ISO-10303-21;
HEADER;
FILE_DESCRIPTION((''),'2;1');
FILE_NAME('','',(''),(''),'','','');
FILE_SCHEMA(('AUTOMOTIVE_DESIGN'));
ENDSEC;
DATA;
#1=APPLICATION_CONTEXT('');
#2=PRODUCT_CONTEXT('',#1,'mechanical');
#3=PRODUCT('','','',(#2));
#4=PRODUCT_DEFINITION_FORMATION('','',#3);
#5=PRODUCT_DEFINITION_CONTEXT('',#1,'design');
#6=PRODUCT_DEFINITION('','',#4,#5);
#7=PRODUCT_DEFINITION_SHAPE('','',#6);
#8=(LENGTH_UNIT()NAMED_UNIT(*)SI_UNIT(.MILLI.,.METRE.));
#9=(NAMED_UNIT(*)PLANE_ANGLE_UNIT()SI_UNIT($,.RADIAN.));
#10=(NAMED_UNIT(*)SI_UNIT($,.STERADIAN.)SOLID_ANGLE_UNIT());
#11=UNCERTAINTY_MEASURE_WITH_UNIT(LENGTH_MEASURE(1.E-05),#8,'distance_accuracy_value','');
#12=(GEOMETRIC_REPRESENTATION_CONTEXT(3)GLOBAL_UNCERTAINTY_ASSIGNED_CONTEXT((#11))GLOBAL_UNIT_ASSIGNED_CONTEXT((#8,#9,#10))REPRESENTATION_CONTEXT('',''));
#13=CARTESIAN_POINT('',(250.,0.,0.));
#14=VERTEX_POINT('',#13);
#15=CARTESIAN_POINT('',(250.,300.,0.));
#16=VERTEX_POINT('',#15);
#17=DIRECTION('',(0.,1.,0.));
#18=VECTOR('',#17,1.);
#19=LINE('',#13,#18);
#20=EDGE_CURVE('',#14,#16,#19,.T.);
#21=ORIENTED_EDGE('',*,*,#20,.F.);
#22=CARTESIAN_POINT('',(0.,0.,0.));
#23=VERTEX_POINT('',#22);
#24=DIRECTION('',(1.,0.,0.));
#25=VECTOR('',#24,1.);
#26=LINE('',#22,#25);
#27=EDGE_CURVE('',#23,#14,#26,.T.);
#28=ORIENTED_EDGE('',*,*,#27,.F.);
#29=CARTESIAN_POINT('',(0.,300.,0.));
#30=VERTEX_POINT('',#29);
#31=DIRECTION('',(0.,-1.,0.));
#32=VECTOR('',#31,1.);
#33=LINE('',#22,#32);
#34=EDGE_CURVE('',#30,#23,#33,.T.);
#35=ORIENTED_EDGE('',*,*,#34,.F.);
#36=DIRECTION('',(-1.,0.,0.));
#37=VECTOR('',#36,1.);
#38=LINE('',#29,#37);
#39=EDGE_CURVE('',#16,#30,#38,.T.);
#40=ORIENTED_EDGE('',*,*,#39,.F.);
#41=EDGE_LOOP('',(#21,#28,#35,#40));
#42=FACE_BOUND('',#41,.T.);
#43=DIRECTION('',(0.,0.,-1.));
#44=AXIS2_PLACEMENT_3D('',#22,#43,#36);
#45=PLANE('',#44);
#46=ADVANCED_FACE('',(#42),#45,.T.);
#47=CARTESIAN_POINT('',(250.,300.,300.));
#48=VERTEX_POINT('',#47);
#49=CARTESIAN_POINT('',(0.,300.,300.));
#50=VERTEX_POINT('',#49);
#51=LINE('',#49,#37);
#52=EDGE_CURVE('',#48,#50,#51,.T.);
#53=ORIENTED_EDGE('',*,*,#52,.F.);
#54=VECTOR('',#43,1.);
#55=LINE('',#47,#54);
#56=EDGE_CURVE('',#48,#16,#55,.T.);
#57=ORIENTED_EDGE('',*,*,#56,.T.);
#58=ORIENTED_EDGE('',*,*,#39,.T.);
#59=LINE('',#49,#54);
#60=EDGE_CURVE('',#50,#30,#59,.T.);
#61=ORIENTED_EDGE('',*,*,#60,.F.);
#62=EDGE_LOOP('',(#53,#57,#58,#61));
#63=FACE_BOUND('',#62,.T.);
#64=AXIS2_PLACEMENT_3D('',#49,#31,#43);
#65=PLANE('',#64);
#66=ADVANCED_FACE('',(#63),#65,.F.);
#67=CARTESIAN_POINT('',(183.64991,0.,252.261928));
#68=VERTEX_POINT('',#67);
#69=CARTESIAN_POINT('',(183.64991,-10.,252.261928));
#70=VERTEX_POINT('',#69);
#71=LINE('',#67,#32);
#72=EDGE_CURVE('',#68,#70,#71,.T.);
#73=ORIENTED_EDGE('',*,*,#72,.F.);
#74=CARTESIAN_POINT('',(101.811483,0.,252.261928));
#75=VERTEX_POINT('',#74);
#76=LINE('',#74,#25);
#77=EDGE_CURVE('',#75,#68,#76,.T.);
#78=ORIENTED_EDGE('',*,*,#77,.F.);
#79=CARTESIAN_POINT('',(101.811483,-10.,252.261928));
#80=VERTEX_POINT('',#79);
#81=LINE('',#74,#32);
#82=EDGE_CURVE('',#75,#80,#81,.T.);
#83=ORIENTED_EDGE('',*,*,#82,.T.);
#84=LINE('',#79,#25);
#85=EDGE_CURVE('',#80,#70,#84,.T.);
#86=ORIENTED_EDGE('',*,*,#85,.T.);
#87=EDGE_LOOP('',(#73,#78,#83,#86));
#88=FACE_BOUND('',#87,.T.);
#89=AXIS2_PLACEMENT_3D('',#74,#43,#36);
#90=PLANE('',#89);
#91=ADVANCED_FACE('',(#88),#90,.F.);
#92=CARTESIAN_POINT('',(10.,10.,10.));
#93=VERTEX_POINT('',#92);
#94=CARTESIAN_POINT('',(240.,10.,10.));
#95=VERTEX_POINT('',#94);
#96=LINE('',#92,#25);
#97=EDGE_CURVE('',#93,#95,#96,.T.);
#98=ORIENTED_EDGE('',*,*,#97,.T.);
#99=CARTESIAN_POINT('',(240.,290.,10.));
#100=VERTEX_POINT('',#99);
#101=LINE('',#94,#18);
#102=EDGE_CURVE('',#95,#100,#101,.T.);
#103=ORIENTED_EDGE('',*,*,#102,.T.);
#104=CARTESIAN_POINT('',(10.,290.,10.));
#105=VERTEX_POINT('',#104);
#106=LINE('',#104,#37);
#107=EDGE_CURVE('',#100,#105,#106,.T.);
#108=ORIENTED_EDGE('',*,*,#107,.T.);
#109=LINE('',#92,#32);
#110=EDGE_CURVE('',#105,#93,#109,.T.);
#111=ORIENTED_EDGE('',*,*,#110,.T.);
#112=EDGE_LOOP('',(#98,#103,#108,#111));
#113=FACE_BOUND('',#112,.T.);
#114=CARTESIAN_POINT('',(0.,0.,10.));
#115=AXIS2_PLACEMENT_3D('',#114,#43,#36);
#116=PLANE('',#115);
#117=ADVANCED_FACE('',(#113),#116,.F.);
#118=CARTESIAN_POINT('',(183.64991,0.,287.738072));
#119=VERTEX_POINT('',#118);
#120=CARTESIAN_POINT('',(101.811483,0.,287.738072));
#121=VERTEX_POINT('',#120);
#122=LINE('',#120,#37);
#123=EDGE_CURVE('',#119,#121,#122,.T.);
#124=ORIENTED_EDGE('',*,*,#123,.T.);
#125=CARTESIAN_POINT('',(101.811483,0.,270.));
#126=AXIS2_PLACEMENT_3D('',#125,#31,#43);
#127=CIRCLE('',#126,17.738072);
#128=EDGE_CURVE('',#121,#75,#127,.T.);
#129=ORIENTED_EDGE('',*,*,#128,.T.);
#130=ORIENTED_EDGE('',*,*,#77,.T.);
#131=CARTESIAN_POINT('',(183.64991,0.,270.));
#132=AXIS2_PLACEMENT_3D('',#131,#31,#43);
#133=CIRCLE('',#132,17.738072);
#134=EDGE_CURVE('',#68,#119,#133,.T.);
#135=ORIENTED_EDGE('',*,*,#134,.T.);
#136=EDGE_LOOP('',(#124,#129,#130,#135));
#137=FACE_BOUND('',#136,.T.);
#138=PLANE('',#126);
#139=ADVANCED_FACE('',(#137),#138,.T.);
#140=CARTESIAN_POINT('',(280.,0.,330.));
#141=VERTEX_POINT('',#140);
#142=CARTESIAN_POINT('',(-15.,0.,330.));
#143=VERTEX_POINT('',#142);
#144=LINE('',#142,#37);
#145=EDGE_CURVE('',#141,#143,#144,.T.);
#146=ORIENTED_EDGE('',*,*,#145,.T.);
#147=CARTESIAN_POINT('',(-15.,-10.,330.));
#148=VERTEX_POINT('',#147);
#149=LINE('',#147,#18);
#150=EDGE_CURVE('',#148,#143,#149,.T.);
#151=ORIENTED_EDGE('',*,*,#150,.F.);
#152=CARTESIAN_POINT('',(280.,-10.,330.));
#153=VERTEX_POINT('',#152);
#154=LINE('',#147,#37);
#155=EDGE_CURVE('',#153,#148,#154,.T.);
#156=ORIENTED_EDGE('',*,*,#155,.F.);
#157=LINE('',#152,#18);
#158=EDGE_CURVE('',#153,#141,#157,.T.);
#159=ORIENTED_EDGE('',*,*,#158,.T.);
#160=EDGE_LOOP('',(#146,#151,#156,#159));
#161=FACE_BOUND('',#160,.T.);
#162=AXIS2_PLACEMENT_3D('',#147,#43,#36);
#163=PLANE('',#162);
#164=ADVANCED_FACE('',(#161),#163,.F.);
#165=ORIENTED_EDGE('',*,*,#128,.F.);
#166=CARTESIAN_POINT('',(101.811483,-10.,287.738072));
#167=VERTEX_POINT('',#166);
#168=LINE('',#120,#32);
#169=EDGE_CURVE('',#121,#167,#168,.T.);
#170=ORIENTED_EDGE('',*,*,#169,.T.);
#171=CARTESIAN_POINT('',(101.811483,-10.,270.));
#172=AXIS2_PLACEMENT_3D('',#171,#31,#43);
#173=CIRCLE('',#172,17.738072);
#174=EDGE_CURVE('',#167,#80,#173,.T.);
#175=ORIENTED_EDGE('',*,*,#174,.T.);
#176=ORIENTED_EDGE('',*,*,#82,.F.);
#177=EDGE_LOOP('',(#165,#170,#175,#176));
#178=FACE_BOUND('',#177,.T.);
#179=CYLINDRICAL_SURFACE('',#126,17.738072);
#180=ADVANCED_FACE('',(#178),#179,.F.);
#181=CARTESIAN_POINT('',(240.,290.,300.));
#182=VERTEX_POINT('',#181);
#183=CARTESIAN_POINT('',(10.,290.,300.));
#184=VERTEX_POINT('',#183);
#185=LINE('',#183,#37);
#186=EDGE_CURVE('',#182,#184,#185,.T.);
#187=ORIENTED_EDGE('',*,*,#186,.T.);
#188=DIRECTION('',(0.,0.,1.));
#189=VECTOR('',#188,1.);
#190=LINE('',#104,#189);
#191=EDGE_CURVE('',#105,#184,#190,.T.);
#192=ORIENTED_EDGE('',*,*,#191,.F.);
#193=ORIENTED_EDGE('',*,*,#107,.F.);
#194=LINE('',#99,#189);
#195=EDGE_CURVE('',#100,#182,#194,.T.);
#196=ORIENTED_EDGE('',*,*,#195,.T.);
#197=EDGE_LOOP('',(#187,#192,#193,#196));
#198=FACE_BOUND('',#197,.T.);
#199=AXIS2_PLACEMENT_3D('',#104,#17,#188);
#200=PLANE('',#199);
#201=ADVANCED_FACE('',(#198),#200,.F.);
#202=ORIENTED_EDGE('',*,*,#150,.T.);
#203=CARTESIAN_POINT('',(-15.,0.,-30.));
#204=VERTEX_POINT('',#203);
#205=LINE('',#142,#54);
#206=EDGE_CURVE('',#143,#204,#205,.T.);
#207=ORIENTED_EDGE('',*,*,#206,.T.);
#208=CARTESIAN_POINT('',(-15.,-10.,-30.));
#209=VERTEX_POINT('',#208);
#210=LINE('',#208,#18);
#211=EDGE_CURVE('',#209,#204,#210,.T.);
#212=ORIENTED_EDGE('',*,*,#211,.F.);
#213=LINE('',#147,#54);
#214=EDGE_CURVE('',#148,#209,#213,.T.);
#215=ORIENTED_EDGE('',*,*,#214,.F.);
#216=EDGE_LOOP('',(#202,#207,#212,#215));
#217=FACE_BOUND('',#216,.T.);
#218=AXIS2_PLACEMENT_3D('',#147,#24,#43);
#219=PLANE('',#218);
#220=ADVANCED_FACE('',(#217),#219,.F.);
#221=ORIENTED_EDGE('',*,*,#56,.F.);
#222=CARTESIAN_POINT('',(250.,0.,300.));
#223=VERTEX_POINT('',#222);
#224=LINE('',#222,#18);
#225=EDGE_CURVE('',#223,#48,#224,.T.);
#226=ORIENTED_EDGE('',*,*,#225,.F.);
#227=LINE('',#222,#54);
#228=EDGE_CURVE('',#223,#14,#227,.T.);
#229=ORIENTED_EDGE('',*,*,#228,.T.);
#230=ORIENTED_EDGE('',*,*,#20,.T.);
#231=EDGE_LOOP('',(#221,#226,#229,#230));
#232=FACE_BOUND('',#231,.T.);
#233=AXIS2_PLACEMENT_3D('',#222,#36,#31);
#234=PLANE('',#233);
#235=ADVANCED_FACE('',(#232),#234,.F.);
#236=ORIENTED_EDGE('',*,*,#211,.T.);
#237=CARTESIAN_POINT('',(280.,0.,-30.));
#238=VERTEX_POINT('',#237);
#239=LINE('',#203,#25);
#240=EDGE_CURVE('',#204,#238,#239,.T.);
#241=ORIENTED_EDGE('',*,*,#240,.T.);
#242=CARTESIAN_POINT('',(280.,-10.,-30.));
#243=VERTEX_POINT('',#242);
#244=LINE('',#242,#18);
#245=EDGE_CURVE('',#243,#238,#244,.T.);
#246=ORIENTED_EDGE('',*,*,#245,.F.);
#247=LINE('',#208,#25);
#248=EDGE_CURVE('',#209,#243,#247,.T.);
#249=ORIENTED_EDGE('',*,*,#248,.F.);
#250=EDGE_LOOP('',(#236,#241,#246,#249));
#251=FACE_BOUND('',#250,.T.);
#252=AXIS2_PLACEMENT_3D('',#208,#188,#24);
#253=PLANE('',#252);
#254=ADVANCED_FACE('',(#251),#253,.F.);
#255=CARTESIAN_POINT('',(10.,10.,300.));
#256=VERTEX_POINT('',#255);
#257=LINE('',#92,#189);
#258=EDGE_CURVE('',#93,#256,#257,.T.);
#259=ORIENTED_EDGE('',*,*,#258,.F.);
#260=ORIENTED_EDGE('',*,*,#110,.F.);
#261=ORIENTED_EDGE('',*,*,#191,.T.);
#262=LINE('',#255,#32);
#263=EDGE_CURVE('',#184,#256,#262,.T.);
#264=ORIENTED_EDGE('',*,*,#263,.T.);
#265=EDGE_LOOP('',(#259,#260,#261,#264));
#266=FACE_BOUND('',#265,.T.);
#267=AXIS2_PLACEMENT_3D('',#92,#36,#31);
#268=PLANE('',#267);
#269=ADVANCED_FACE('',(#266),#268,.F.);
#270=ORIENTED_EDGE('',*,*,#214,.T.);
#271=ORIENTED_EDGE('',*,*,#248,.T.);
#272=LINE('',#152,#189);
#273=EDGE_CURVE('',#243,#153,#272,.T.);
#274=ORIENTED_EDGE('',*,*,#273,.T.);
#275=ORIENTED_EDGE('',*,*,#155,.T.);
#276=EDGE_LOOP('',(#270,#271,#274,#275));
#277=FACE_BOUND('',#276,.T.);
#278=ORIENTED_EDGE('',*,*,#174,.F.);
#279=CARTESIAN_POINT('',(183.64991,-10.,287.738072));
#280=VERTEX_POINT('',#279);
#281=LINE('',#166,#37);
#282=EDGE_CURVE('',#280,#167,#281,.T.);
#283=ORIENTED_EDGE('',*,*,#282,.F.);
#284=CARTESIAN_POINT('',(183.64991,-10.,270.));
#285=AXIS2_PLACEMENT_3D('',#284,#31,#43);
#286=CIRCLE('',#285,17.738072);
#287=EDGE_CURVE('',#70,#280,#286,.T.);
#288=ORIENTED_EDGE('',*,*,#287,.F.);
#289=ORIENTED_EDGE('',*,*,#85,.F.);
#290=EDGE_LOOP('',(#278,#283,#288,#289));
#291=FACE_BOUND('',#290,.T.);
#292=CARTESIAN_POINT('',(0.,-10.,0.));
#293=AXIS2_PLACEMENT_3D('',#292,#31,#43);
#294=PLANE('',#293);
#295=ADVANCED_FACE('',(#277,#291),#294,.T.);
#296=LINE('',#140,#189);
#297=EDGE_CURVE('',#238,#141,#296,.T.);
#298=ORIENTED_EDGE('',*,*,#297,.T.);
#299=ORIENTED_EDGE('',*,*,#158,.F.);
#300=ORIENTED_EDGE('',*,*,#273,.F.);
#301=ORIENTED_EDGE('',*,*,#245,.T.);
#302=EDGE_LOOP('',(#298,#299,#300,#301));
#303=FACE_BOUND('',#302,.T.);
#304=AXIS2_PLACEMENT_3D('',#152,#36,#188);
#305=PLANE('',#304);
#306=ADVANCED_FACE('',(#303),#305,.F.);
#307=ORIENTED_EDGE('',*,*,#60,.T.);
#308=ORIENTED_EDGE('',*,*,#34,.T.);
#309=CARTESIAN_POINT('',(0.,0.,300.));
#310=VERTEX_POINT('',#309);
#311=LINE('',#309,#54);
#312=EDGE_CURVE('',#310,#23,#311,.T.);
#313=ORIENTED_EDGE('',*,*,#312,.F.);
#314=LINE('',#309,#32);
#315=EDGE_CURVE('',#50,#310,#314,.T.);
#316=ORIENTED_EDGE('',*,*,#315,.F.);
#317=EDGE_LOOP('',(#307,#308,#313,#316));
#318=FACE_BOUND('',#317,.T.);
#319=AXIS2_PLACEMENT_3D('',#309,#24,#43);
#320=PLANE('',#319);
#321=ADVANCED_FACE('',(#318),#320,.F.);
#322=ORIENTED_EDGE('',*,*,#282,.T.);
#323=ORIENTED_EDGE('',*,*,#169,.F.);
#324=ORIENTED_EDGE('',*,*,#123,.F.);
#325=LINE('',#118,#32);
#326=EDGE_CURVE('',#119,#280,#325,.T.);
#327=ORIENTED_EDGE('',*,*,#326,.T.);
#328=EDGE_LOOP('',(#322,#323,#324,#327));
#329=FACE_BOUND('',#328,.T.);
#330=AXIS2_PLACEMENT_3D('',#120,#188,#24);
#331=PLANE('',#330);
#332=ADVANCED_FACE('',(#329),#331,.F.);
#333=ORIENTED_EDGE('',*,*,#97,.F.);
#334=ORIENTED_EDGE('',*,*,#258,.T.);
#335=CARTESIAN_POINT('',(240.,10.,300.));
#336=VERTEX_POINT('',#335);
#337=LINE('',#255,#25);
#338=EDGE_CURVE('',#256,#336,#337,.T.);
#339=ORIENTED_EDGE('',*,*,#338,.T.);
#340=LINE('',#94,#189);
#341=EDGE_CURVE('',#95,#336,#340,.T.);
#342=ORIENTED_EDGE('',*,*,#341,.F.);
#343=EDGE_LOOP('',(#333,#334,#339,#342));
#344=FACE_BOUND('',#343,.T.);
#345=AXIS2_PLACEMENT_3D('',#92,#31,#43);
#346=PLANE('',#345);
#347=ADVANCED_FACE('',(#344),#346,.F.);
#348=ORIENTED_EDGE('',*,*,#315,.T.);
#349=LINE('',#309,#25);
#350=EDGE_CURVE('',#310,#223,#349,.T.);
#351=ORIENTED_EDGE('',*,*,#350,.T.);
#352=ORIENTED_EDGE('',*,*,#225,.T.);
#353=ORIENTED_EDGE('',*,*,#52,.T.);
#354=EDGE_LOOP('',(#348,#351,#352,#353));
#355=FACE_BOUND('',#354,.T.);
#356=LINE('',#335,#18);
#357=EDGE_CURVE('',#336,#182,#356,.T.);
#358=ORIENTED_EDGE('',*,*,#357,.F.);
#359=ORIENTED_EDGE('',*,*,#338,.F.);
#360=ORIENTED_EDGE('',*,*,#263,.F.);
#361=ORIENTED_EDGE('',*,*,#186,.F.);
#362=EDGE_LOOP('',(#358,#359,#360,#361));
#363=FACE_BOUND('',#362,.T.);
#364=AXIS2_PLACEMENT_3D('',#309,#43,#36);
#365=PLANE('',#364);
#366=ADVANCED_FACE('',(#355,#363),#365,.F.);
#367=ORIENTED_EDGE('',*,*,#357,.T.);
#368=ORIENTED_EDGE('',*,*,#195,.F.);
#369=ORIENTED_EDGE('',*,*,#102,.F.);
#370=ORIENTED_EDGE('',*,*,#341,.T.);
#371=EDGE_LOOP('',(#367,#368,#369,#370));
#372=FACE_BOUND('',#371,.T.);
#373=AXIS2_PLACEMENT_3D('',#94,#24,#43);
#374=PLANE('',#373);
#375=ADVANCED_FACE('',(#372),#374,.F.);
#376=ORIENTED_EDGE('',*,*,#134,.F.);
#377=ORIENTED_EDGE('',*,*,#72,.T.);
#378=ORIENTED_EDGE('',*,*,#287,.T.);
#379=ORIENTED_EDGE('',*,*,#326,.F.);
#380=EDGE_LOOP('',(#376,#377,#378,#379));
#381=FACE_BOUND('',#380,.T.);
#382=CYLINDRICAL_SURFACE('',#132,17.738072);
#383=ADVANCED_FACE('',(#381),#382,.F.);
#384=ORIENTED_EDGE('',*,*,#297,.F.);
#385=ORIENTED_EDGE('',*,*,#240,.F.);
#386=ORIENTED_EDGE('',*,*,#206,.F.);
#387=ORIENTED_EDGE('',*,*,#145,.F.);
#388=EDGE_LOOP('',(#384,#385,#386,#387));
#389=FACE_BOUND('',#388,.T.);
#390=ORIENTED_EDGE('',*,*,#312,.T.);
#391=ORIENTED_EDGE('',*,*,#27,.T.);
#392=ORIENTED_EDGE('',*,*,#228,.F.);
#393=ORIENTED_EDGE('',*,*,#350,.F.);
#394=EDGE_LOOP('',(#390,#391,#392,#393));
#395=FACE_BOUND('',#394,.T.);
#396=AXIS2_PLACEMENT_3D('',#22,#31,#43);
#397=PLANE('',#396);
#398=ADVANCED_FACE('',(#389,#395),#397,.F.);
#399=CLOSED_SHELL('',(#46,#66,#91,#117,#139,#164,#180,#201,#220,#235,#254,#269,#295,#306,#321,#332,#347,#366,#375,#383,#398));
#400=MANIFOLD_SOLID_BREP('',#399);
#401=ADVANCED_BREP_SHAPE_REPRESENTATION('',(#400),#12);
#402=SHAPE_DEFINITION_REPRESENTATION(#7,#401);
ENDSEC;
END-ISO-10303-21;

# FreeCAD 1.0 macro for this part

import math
import FreeCAD as App
import Part
import Sketcher

V = App.Vector

doc = App.newDocument("Part")
body = doc.addObject("PartDesign::Body", "Body")

# Sketch on XY plane
sketch1 = doc.addObject("Sketcher::SketchObject", "Sketch")
body.addObject(sketch1)
sketch1.AttachmentSupport = (doc.XY_Plane, [""])
sketch1.MapMode = "FlatFace"
sketch1.addGeometry(Part.LineSegment(V(0, 300, 0), V(0, 0, 0)), False)
sketch1.addGeometry(Part.LineSegment(V(0, 0, 0), V(250, 0, 0)), False)
sketch1.addGeometry(Part.LineSegment(V(250, 0, 0), V(250, 300, 0)), False)
sketch1.addGeometry(Part.LineSegment(V(250, 300, 0), V(0, 300, 0)), False)
sketch1.addConstraint(Sketcher.Constraint("Coincident", 0, 2, 1, 1))
sketch1.addConstraint(Sketcher.Constraint("Coincident", 1, 2, 2, 1))
sketch1.addConstraint(Sketcher.Constraint("Coincident", 2, 2, 3, 1))
sketch1.addConstraint(Sketcher.Constraint("Coincident", 3, 2, 0, 1))
sketch1.addConstraint(Sketcher.Constraint("Vertical", 0))
sketch1.addConstraint(Sketcher.Constraint("Horizontal", 1))
sketch1.addConstraint(Sketcher.Constraint("Vertical", 2))
sketch1.addConstraint(Sketcher.Constraint("Horizontal", 3))
sketch1.addConstraint(Sketcher.Constraint("Coincident", 0, 2, -1, 1))
sketch1.addConstraint(Sketcher.Constraint("DistanceX", 1, 1, 1, 2, 250.0))
sketch1.addConstraint(Sketcher.Constraint("DistanceY", 0, 2, 0, 1, 300.0))
pad1 = doc.addObject("PartDesign::Pad", "Pad")
body.addObject(pad1)
pad1.Profile = sketch1
pad1.Length = 300

# Sketch on XY plane
sketch2 = doc.addObject("Sketcher::SketchObject", "Sketch001")
body.addObject(sketch2)
sketch2.AttachmentSupport = (doc.XY_Plane, [""])
sketch2.MapMode = "FlatFace"
sketch2.AttachmentOffset = App.Placement(V(0, 0, 300), App.Rotation())
sketch2.addGeometry(Part.LineSegment(V(10, 290, 0), V(10, 10, 0)), False)
sketch2.addGeometry(Part.LineSegment(V(10, 10, 0), V(240, 10, 0)), False)
sketch2.addGeometry(Part.LineSegment(V(240, 10, 0), V(240, 290, 0)), False)
sketch2.addGeometry(Part.LineSegment(V(240, 290, 0), V(10, 290, 0)), False)
sketch2.addConstraint(Sketcher.Constraint("Coincident", 0, 2, 1, 1))
sketch2.addConstraint(Sketcher.Constraint("Coincident", 1, 2, 2, 1))
sketch2.addConstraint(Sketcher.Constraint("Coincident", 2, 2, 3, 1))
sketch2.addConstraint(Sketcher.Constraint("Coincident", 3, 2, 0, 1))
sketch2.addConstraint(Sketcher.Constraint("Vertical", 0))
sketch2.addConstraint(Sketcher.Constraint("Horizontal", 1))
sketch2.addConstraint(Sketcher.Constraint("Vertical", 2))
sketch2.addConstraint(Sketcher.Constraint("Horizontal", 3))
sketch2.addConstraint(Sketcher.Constraint("DistanceX", 1, 1, 1, 2, 230.0))
sketch2.addConstraint(Sketcher.Constraint("DistanceY", 0, 2, 0, 1, 280.0))
sketch2.addConstraint(Sketcher.Constraint("DistanceX", -1, 1, 0, 2, 10.0))
sketch2.addConstraint(Sketcher.Constraint("DistanceY", -1, 1, 0, 2, 10.0))
pocket1 = doc.addObject("PartDesign::Pocket", "Pocket")
body.addObject(pocket1)
pocket1.Profile = sketch2
pocket1.Length = 290

# Sketch on XZ plane
sketch3 = doc.addObject("Sketcher::SketchObject", "Sketch002")
body.addObject(sketch3)
sketch3.AttachmentSupport = (doc.XZ_Plane, [""])
sketch3.MapMode = "FlatFace"
sketch3.addGeometry(Part.LineSegment(V(-15, 330, 0), V(-15, -30, 0)), False)
sketch3.addGeometry(Part.LineSegment(V(-15, -30, 0), V(280, -30, 0)), False)
sketch3.addGeometry(Part.LineSegment(V(280, -30, 0), V(280, 330, 0)), False)
sketch3.addGeometry(Part.LineSegment(V(280, 330, 0), V(-15, 330, 0)), False)
sketch3.addConstraint(Sketcher.Constraint("Coincident", 0, 2, 1, 1))
sketch3.addConstraint(Sketcher.Constraint("Coincident", 1, 2, 2, 1))
sketch3.addConstraint(Sketcher.Constraint("Coincident", 2, 2, 3, 1))
sketch3.addConstraint(Sketcher.Constraint("Coincident", 3, 2, 0, 1))
sketch3.addConstraint(Sketcher.Constraint("Vertical", 0))
sketch3.addConstraint(Sketcher.Constraint("Horizontal", 1))
sketch3.addConstraint(Sketcher.Constraint("Vertical", 2))
sketch3.addConstraint(Sketcher.Constraint("Horizontal", 3))
sketch3.addConstraint(Sketcher.Constraint("DistanceX", 1, 1, 1, 2, 295.0))
sketch3.addConstraint(Sketcher.Constraint("DistanceY", 0, 2, 0, 1, 360.0))
sketch3.addConstraint(Sketcher.Constraint("DistanceX", 0, 2, -1, 1, 15.0))
sketch3.addConstraint(Sketcher.Constraint("DistanceY", 0, 2, -1, 1, 30.0))
pad2 = doc.addObject("PartDesign::Pad", "Pad001")
body.addObject(pad2)
pad2.Profile = sketch3
pad2.Length = 10

# Sketch on XZ plane
sketch4 = doc.addObject("Sketcher::SketchObject", "Sketch003")
body.addObject(sketch4)
sketch4.AttachmentSupport = (doc.XZ_Plane, [""])
sketch4.MapMode = "FlatFace"
sketch4.AttachmentOffset = App.Placement(V(0, 0, 10), App.Rotation())
sketch4.addGeometry(Part.LineSegment(V(184, 288, 0), V(102, 288, 0)), False)
sketch4.addGeometry(Part.ArcOfCircle(Part.Circle(V(102, 270, 0), V(0, 0, 1), 18), math.radians(90), math.radians(270)), False)
sketch4.addGeometry(Part.LineSegment(V(102, 252, 0), V(184, 252, 0)), False)
sketch4.addGeometry(Part.ArcOfCircle(Part.Circle(V(184, 270, 0), V(0, 0, 1), 18), math.radians(-90), math.radians(90)), False)
sketch4.addConstraint(Sketcher.Constraint("Tangent", 0, 2, 1, 1))
sketch4.addConstraint(Sketcher.Constraint("Tangent", 1, 2, 2, 1))
sketch4.addConstraint(Sketcher.Constraint("Tangent", 2, 2, 3, 1))
sketch4.addConstraint(Sketcher.Constraint("Tangent", 3, 2, 0, 1))
sketch4.addConstraint(Sketcher.Constraint("Horizontal", 0))
sketch4.addConstraint(Sketcher.Constraint("Horizontal", 2))
sketch4.addConstraint(Sketcher.Constraint("DistanceY", -1, 1, 1, 3, 270.0))
sketch4.addConstraint(Sketcher.Constraint("Radius", 1, 17.738072))
sketch4.addConstraint(Sketcher.Constraint("DistanceX", 0, 2, 0, 1, 81.838426))
sketch4.addConstraint(Sketcher.Constraint("DistanceX", -1, 1, 3, 3, 183.64991))
pocket2 = doc.addObject("PartDesign::Pocket", "Pocket001")
body.addObject(pocket2)
pocket2.Profile = sketch4
pocket2.Length = 10

doc.recompute()
